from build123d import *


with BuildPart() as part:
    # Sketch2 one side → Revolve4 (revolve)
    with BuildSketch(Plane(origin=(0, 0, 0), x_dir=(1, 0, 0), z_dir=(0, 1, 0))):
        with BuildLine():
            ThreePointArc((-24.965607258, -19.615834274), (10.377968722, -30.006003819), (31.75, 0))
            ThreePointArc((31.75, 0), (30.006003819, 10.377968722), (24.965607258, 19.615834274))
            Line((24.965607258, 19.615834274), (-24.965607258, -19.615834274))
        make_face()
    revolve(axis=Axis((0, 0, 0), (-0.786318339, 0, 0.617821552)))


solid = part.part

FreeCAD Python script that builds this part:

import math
import FreeCAD as App
import Part
import Sketcher
Q = App.Units.Quantity

doc = App.newDocument("Part")
body = doc.addObject("PartDesign::Body", "Body")

sketch1 = body.newObject("Sketcher::SketchObject", "Sketch")
sketch1.AttachmentSupport = (doc.getObject("XZ_Plane"), [""])
sketch1.MapMode = "FlatFace"
sketch1.addGeometry([
    Part.ArcOfCircle(Part.Circle(App.Vector(0, 0, 0), App.Vector(0, 0, 1), 32), math.radians(0), math.radians(142)),
    Part.ArcOfCircle(Part.Circle(App.Vector(0, 0, 0), App.Vector(0, 0, 1), 32), math.radians(-38), math.radians(0)),
    Part.LineSegment(App.Vector(25, -20, 0), App.Vector(-25, 20, 0)),
], False)
sketch1.addGeometry(Part.LineSegment(App.Vector(25, -20, 0), App.Vector(-25, 20, 0)), True)
sketch1.addConstraint([
    Sketcher.Constraint("Tangent", 0, 1, 1, 2),
    Sketcher.Constraint("Coincident", 1, 1, 2, 1),
    Sketcher.Constraint("Coincident", 2, 2, 0, 2),
    Sketcher.Constraint("Coincident", 0, 3, -1, 1),
    Sketcher.Constraint("Coincident", 3, 1, 1, 1),
    Sketcher.Constraint("Coincident", 3, 2, 2, 2),
    Sketcher.Constraint("Equal", 0, 1),
    Sketcher.Constraint("PointOnObject", 0, 1, -1),
    Sketcher.Constraint("Radius", 0, Q("1.25 in")),
    Sketcher.Constraint("DistanceY", 1, 1, 2, 2, 39.231669),
    Sketcher.Constraint("DistanceX", -1, 1, 1, 1, 24.965607),
])
revolution = body.newObject("PartDesign::Revolution", "Revolution")
revolution.Profile = sketch1
revolution.ReferenceAxis = (sketch1, ["Axis0"])
revolution.Angle = 360

doc.recompute()
